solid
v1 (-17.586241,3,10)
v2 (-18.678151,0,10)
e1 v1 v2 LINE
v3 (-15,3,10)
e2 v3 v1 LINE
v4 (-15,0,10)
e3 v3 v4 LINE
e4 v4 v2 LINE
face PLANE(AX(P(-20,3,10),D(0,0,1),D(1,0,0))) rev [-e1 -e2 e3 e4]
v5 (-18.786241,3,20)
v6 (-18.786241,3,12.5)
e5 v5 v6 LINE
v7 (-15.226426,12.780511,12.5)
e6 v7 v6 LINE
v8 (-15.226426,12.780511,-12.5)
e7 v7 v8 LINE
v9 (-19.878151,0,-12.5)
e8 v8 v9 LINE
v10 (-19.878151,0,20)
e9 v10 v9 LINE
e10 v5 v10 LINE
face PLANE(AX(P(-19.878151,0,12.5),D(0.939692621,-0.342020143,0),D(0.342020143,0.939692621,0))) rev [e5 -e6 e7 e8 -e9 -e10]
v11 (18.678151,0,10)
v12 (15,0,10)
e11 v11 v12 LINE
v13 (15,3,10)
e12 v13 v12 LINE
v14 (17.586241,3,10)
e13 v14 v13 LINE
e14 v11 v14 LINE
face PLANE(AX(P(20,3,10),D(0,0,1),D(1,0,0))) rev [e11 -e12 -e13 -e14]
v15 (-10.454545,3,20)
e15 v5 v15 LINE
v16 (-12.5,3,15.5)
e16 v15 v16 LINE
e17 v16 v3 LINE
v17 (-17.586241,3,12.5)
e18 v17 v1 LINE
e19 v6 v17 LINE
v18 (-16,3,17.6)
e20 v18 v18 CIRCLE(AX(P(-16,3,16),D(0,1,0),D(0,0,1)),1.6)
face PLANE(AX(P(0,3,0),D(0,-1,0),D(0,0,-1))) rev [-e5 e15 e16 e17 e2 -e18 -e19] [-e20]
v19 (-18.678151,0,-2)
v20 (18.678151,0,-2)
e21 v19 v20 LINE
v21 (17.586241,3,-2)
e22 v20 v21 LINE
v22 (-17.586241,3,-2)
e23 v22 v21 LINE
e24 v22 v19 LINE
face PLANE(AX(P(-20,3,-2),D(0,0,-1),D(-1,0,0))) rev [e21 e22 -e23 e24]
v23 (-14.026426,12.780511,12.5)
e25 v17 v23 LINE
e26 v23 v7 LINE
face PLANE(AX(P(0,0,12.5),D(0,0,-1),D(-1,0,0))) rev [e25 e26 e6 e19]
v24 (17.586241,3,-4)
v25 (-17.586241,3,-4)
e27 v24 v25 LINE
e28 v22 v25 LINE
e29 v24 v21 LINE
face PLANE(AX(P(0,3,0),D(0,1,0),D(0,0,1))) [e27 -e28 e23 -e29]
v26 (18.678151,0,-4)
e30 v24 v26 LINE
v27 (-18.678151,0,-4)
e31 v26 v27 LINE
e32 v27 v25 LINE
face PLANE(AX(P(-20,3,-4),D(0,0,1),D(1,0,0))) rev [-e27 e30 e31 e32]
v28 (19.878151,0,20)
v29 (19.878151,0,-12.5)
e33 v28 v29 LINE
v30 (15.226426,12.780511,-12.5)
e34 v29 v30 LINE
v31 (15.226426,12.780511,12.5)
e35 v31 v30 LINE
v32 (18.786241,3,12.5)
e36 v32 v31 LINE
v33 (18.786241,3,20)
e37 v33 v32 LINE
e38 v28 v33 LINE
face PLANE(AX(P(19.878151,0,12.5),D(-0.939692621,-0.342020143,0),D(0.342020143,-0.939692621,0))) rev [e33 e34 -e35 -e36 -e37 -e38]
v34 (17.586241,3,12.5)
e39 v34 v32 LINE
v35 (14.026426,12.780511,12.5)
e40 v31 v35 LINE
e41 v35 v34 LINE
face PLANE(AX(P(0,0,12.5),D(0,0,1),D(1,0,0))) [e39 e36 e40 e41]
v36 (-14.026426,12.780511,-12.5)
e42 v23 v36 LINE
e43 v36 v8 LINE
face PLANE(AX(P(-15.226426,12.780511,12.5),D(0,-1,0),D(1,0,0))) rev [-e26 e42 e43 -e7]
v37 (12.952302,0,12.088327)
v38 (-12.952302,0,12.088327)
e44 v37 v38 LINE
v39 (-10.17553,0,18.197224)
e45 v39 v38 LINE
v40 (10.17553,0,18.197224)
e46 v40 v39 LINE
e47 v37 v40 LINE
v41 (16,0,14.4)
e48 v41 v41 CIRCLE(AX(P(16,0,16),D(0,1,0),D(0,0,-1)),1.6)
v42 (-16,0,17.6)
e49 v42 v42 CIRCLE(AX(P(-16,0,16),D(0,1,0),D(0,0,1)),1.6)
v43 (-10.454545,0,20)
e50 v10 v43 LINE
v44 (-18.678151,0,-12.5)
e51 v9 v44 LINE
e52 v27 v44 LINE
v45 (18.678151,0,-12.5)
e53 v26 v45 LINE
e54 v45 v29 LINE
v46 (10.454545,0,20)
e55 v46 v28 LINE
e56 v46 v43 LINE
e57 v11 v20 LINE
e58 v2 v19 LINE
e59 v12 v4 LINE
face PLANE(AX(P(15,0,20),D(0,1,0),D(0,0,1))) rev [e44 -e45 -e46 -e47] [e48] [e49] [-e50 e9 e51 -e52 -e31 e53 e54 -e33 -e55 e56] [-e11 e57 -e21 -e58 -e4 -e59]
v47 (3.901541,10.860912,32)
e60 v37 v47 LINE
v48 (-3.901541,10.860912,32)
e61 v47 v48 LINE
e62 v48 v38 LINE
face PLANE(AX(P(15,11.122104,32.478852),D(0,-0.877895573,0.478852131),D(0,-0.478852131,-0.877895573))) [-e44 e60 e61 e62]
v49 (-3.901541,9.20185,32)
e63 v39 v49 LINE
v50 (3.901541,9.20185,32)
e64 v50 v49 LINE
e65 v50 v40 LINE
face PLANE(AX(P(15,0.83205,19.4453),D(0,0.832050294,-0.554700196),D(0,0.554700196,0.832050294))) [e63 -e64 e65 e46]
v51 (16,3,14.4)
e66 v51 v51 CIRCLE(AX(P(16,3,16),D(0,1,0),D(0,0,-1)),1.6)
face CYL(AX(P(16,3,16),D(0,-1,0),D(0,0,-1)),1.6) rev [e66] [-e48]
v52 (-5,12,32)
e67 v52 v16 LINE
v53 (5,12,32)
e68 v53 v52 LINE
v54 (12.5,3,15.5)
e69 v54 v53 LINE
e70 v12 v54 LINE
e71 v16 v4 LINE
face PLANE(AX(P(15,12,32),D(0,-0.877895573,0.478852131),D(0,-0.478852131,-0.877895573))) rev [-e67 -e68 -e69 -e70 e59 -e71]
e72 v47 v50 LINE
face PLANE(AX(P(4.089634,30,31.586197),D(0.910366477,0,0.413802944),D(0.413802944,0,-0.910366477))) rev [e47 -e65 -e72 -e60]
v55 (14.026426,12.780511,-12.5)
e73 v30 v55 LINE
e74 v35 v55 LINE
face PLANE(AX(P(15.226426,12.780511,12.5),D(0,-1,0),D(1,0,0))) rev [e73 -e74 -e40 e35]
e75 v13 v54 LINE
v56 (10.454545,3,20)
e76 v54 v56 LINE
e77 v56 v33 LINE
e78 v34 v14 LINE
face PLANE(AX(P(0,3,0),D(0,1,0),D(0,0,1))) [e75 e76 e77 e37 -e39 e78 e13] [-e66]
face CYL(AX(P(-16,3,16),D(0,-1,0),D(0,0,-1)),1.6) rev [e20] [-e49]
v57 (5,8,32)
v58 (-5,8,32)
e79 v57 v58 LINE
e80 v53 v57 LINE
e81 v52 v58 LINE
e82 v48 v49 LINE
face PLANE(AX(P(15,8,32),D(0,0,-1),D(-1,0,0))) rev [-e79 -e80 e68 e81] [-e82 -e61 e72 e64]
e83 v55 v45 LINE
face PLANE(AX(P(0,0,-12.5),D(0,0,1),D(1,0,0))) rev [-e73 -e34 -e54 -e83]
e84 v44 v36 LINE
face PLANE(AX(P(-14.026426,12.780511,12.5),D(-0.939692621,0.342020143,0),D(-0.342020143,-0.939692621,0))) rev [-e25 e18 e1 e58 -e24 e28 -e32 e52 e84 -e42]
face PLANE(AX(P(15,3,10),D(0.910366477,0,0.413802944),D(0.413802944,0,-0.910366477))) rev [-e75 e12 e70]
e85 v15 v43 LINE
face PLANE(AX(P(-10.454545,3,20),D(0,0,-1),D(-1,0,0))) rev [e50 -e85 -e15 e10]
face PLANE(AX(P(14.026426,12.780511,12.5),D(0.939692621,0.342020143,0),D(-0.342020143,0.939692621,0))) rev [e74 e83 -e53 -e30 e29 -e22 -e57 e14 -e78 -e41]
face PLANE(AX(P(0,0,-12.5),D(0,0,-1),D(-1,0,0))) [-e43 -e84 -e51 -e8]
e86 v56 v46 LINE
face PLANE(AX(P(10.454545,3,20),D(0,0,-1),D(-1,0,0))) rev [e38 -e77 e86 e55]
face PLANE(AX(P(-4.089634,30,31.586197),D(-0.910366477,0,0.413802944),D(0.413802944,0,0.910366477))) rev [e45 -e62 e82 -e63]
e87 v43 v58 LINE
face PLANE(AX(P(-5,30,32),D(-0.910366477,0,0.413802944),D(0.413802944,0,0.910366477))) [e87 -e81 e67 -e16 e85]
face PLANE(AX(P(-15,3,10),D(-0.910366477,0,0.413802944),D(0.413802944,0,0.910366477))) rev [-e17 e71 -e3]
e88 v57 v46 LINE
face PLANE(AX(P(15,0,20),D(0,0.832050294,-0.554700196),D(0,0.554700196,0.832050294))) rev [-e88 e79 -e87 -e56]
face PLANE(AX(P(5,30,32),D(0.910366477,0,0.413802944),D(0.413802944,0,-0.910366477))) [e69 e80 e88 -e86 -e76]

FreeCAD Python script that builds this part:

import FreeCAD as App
import Part
import Sketcher
Q = App.Units.Quantity


def faces_at(feature, points):
    """Names of the faces that lie closest to the given points."""
    faces = feature.Shape.Faces
    near = lambda p: min(range(len(faces)), key=lambda i: faces[i].distToShape(Part.Vertex(*p))[0])
    return sorted({f"Face{near(p) + 1}" for p in points})


def add_polygon(sketch, points):
    """Adds a closed chain of lines whose ends are joined by coincident constraints."""
    first, n = sketch.GeometryCount, len(points)
    for a, b in zip(points, points[1:] + points[:1]):
        sketch.addGeometry(Part.LineSegment(App.Vector(*a, 0), App.Vector(*b, 0)), False)
    for i in range(n):
        sketch.addConstraint(Sketcher.Constraint("Coincident", first + i, 2, first + (i + 1) % n, 1))

doc = App.newDocument("Part")
body = doc.addObject("PartDesign::Body", "Body")

# Sketch on YZ plane
sketch1 = body.newObject("Sketcher::SketchObject", "Sketch")
sketch1.AttachmentSupport = (doc.getObject("YZ_Plane"), [""])
sketch1.MapMode = "FlatFace"
add_polygon(sketch1, [(0, 20), (0, 10), (12, 32), (8, 32)])  # lines 0-3
sketch1.addConstraint(Sketcher.Constraint("Vertical", 0))
sketch1.addConstraint(Sketcher.Constraint("Horizontal", 2))
sketch1.addConstraint(Sketcher.Constraint("PointOnObject", 0, 2, -2))
sketch1.addConstraint(Sketcher.Constraint("DistanceX", 2, 2, 2, 1, 4.0))
sketch1.addConstraint(Sketcher.Constraint("DistanceY", 0, 2, 0, 1, 10.0))
sketch1.addConstraint(Sketcher.Constraint("DistanceY", -1, 1, 0, 2, 10.0))
sketch1.addConstraint(Sketcher.Constraint("DistanceX", -1, 1, 1, 2, 12.0))
sketch1.addConstraint(Sketcher.Constraint("DistanceY", -1, 1, 1, 2, 32.0))
pad1 = body.newObject("PartDesign::Pad", "Pad")
pad1.Profile = sketch1
pad1.Length = 30
pad1.Midplane = True

# Sketch on XZ plane
sketch2 = body.newObject("Sketcher::SketchObject", "Sketch001")
sketch2.AttachmentSupport = (doc.getObject("XZ_Plane"), [""])
sketch2.MapMode = "FlatFace"
add_polygon(sketch2, [(-15, 10), (-15, 32), (-5, 32)])  # lines 0-2
add_polygon(sketch2, [(15, 10), (5, 32), (15, 32)])  # lines 3-5
sketch2.addConstraint(Sketcher.Constraint("Vertical", 0))
sketch2.addConstraint(Sketcher.Constraint("Horizontal", 1))
sketch2.addConstraint(Sketcher.Constraint("Horizontal", 4))
sketch2.addConstraint(Sketcher.Constraint("Vertical", 5))
sketch2.addConstraint(Sketcher.Constraint("Symmetric", 1, 2, 3, 2, -2))
sketch2.addConstraint(Sketcher.Constraint("Symmetric", 2, 2, 5, 2, -2))
sketch2.addConstraint(Sketcher.Constraint("DistanceX", 1, 1, 1, 2, 10.0))
sketch2.addConstraint(Sketcher.Constraint("DistanceY", 0, 1, 0, 2, 22.0))
sketch2.addConstraint(Sketcher.Constraint("DistanceX", 0, 2, -1, 1, 15.0))
sketch2.addConstraint(Sketcher.Constraint("DistanceY", -1, 1, 0, 2, 32.0))
pocket1 = body.newObject("PartDesign::Pocket", "Pocket")
pocket1.Profile = sketch2
pocket1.Length = 30
doc.recompute()

thickness = body.newObject("PartDesign::Thickness", "Thickness")
thickness.Base = (pocket1, faces_at(pocket1, [(0, 10, 32), (0, 0, 15)]))
thickness.Value = 1
thickness.Reversed = True
thickness.Join = "Intersection"
body2 = doc.addObject("PartDesign::Body", "Body001")

# Sketch on XY plane
sketch3 = body2.newObject("Sketcher::SketchObject", "Sketch002")
sketch3.AttachmentSupport = (doc.getObject("XY_Plane001"), [""])
sketch3.MapMode = "FlatFace"
add_polygon(sketch3, [(-15.226426, 12.780511), (-19.878151, 0), (-18.678151, 0), (-14.026426, 12.780511)])  # lines 0-3
sketch3.addConstraint(Sketcher.Constraint("Horizontal", 1))
sketch3.addConstraint(Sketcher.Constraint("Horizontal", 3))
sketch3.addConstraint(Sketcher.Constraint("PointOnObject", 0, 2, -1))
sketch3.addConstraint(Sketcher.Constraint("Parallel", 0, 2))
sketch3.addConstraint(Sketcher.Constraint("Angle", 0, Q("-110 deg")))
sketch3.addConstraint(Sketcher.Constraint("DistanceX", 1, 1, 1, 2, 1.2))
sketch3.addConstraint(Sketcher.Constraint("DistanceX", 0, 2, -1, 1, 19.878151))
sketch3.addConstraint(Sketcher.Constraint("DistanceY", -1, 1, 2, 2, 12.780511))
pad2 = body2.newObject("PartDesign::Pad", "Pad001")
pad2.Profile = sketch3
pad2.Length = 25
pad2.Midplane = True
body3 = doc.addObject("PartDesign::Body", "Body002")

# Sketch on XY plane
sketch4 = body3.newObject("Sketcher::SketchObject", "Sketch003")
sketch4.AttachmentSupport = (doc.getObject("XY_Plane002"), [""])
sketch4.MapMode = "FlatFace"
add_polygon(sketch4, [(18.678151, 0), (19.878151, 0), (15.226426, 12.780511), (14.026426, 12.780511)])  # lines 0-3
sketch4.addConstraint(Sketcher.Constraint("Horizontal", 0))
sketch4.addConstraint(Sketcher.Constraint("Horizontal", 2))
sketch4.addConstraint(Sketcher.Constraint("PointOnObject", 0, 2, -1))
sketch4.addConstraint(Sketcher.Constraint("Parallel", 1, 3))
sketch4.addConstraint(Sketcher.Constraint("Angle", 1, Q("110 deg")))
sketch4.addConstraint(Sketcher.Constraint("DistanceX", 0, 1, 0, 2, 1.2))
sketch4.addConstraint(Sketcher.Constraint("DistanceX", -1, 1, 0, 2, 19.878151))
sketch4.addConstraint(Sketcher.Constraint("DistanceY", -1, 1, 1, 2, 12.780511))
pad3 = body3.newObject("PartDesign::Pad", "Pad002")
pad3.Profile = sketch4
pad3.Length = 25
pad3.Midplane = True
body.AllowCompound = True
doc.recompute()

boolean = body.newObject("PartDesign::Boolean", "Boolean")
boolean.Type = "Fuse"
boolean.addObjects([body2])
doc.recompute()

boolean2 = body.newObject("PartDesign::Boolean", "Boolean001")
boolean2.Type = "Fuse"
boolean2.addObjects([body3])

# Sketch on XZ plane
sketch5 = body.newObject("Sketcher::SketchObject", "Sketch004")
sketch5.AttachmentSupport = (doc.getObject("XZ_Plane"), [""])
sketch5.MapMode = "FlatFace"
add_polygon(sketch5, [(-15, 10), (-20, 10), (-20, 20), (-10.454545, 20)])  # lines 0-3
sketch5.addGeometry(Part.Circle(App.Vector(-16, 16, 0), App.Vector(0, 0, 1), 1.6), False)  # 4
add_polygon(sketch5, [(20, 20), (20, 10), (15, 10), (10.454545, 20)])  # lines 5-8
sketch5.addGeometry(Part.Circle(App.Vector(16, 16, 0), App.Vector(0, 0, 1), 1.6), False)  # 9
add_polygon(sketch5, [(-20, -4), (-20, -2), (20, -2), (20, -4)])  # lines 10-13
sketch5.addConstraint(Sketcher.Constraint("Horizontal", 0))
sketch5.addConstraint(Sketcher.Constraint("Vertical", 1))
sketch5.addConstraint(Sketcher.Constraint("Horizontal", 2))
sketch5.addConstraint(Sketcher.Constraint("Vertical", 5))
sketch5.addConstraint(Sketcher.Constraint("Horizontal", 6))
sketch5.addConstraint(Sketcher.Constraint("Horizontal", 8))
sketch5.addConstraint(Sketcher.Constraint("Vertical", 10))
sketch5.addConstraint(Sketcher.Constraint("Horizontal", 11))
sketch5.addConstraint(Sketcher.Constraint("Vertical", 12))
sketch5.addConstraint(Sketcher.Constraint("Horizontal", 13))
sketch5.addConstraint(Sketcher.Constraint("Equal", 4, 9))
sketch5.addConstraint(Sketcher.Constraint("Symmetric", 4, 3, 9, 3, -2))
sketch5.addConstraint(Sketcher.Constraint("Symmetric", 0, 2, 5, 2, -2))
sketch5.addConstraint(Sketcher.Constraint("Symmetric", 2, 2, 7, 2, -2))
sketch5.addConstraint(Sketcher.Constraint("Vertical", 1, 2, 10, 2))
sketch5.addConstraint(Sketcher.Constraint("Vertical", 8, 2, 11, 2))
sketch5.addConstraint(Sketcher.Constraint("Equal", 0, 6))
sketch5.addConstraint(Sketcher.Constraint("Diameter", 4, 3.2))
sketch5.addConstraint(Sketcher.Constraint("DistanceX", 0, 2, 0, 1, 5.0))
sketch5.addConstraint(Sketcher.Constraint("DistanceX", 11, 1, 11, 2, 40.0))
sketch5.addConstraint(Sketcher.Constraint("DistanceY", 1, 1, 1, 2, 10.0))
sketch5.addConstraint(Sketcher.Constraint("DistanceY", 10, 1, 10, 2, 2.0))
sketch5.addConstraint(Sketcher.Constraint("DistanceX", 4, 3, -1, 1, 16.0))
sketch5.addConstraint(Sketcher.Constraint("DistanceY", -1, 1, 4, 3, 16.0))
sketch5.addConstraint(Sketcher.Constraint("DistanceY", -1, 1, 0, 2, 10.0))
sketch5.addConstraint(Sketcher.Constraint("DistanceY", 10, 2, -1, 1, 2.0))
sketch5.addConstraint(Sketcher.Constraint("DistanceX", 2, 1, 2, 2, 9.545455))
pad4 = body.newObject("PartDesign::Pad", "Pad003")
pad4.Profile = sketch5
pad4.Length = 3
pad4.Reversed = True

# Sketch on XY plane
sketch6 = body.newObject("Sketcher::SketchObject", "Sketch005")
sketch6.AttachmentSupport = (doc.getObject("XY_Plane"), [""])
sketch6.MapMode = "FlatFace"
sketch6.AttachmentOffset = App.Placement(App.Vector(0, 0, -12.5), App.Rotation())
add_polygon(sketch6, [(18.786241, 3), (20, 3), (20, 0), (19.878151, 0)])  # lines 0-3
add_polygon(sketch6, [(-20, 0), (-20, 3), (-18.786241, 3), (-19.878151, 0)])  # lines 4-7
sketch6.addConstraint(Sketcher.Constraint("Horizontal", 0))
sketch6.addConstraint(Sketcher.Constraint("Vertical", 1))
sketch6.addConstraint(Sketcher.Constraint("Horizontal", 2))
sketch6.addConstraint(Sketcher.Constraint("Vertical", 4))
sketch6.addConstraint(Sketcher.Constraint("Horizontal", 5))
sketch6.addConstraint(Sketcher.Constraint("Horizontal", 7))
sketch6.addConstraint(Sketcher.Constraint("Symmetric", 2, 2, 6, 2, -1, 1))
sketch6.addConstraint(Sketcher.Constraint("Symmetric", 0, 2, 4, 2, -2))
sketch6.addConstraint(Sketcher.Constraint("PointOnObject", 1, 2, -1))
sketch6.addConstraint(Sketcher.Constraint("Equal", 0, 5))
sketch6.addConstraint(Sketcher.Constraint("DistanceY", 1, 2, 1, 1, 3.0))
sketch6.addConstraint(Sketcher.Constraint("Angle", 3, Q("110 deg")))
sketch6.addConstraint(Sketcher.Constraint("DistanceX", -1, 1, 0, 2, 20.0))
sketch6.addConstraint(Sketcher.Constraint("DistanceX", 0, 1, 0, 2, 1.213759))
pocket2 = body.newObject("PartDesign::Pocket", "Pocket001")
pocket2.Profile = sketch6
pocket2.Length = 61
pocket2.Reversed = True

doc.recompute()
